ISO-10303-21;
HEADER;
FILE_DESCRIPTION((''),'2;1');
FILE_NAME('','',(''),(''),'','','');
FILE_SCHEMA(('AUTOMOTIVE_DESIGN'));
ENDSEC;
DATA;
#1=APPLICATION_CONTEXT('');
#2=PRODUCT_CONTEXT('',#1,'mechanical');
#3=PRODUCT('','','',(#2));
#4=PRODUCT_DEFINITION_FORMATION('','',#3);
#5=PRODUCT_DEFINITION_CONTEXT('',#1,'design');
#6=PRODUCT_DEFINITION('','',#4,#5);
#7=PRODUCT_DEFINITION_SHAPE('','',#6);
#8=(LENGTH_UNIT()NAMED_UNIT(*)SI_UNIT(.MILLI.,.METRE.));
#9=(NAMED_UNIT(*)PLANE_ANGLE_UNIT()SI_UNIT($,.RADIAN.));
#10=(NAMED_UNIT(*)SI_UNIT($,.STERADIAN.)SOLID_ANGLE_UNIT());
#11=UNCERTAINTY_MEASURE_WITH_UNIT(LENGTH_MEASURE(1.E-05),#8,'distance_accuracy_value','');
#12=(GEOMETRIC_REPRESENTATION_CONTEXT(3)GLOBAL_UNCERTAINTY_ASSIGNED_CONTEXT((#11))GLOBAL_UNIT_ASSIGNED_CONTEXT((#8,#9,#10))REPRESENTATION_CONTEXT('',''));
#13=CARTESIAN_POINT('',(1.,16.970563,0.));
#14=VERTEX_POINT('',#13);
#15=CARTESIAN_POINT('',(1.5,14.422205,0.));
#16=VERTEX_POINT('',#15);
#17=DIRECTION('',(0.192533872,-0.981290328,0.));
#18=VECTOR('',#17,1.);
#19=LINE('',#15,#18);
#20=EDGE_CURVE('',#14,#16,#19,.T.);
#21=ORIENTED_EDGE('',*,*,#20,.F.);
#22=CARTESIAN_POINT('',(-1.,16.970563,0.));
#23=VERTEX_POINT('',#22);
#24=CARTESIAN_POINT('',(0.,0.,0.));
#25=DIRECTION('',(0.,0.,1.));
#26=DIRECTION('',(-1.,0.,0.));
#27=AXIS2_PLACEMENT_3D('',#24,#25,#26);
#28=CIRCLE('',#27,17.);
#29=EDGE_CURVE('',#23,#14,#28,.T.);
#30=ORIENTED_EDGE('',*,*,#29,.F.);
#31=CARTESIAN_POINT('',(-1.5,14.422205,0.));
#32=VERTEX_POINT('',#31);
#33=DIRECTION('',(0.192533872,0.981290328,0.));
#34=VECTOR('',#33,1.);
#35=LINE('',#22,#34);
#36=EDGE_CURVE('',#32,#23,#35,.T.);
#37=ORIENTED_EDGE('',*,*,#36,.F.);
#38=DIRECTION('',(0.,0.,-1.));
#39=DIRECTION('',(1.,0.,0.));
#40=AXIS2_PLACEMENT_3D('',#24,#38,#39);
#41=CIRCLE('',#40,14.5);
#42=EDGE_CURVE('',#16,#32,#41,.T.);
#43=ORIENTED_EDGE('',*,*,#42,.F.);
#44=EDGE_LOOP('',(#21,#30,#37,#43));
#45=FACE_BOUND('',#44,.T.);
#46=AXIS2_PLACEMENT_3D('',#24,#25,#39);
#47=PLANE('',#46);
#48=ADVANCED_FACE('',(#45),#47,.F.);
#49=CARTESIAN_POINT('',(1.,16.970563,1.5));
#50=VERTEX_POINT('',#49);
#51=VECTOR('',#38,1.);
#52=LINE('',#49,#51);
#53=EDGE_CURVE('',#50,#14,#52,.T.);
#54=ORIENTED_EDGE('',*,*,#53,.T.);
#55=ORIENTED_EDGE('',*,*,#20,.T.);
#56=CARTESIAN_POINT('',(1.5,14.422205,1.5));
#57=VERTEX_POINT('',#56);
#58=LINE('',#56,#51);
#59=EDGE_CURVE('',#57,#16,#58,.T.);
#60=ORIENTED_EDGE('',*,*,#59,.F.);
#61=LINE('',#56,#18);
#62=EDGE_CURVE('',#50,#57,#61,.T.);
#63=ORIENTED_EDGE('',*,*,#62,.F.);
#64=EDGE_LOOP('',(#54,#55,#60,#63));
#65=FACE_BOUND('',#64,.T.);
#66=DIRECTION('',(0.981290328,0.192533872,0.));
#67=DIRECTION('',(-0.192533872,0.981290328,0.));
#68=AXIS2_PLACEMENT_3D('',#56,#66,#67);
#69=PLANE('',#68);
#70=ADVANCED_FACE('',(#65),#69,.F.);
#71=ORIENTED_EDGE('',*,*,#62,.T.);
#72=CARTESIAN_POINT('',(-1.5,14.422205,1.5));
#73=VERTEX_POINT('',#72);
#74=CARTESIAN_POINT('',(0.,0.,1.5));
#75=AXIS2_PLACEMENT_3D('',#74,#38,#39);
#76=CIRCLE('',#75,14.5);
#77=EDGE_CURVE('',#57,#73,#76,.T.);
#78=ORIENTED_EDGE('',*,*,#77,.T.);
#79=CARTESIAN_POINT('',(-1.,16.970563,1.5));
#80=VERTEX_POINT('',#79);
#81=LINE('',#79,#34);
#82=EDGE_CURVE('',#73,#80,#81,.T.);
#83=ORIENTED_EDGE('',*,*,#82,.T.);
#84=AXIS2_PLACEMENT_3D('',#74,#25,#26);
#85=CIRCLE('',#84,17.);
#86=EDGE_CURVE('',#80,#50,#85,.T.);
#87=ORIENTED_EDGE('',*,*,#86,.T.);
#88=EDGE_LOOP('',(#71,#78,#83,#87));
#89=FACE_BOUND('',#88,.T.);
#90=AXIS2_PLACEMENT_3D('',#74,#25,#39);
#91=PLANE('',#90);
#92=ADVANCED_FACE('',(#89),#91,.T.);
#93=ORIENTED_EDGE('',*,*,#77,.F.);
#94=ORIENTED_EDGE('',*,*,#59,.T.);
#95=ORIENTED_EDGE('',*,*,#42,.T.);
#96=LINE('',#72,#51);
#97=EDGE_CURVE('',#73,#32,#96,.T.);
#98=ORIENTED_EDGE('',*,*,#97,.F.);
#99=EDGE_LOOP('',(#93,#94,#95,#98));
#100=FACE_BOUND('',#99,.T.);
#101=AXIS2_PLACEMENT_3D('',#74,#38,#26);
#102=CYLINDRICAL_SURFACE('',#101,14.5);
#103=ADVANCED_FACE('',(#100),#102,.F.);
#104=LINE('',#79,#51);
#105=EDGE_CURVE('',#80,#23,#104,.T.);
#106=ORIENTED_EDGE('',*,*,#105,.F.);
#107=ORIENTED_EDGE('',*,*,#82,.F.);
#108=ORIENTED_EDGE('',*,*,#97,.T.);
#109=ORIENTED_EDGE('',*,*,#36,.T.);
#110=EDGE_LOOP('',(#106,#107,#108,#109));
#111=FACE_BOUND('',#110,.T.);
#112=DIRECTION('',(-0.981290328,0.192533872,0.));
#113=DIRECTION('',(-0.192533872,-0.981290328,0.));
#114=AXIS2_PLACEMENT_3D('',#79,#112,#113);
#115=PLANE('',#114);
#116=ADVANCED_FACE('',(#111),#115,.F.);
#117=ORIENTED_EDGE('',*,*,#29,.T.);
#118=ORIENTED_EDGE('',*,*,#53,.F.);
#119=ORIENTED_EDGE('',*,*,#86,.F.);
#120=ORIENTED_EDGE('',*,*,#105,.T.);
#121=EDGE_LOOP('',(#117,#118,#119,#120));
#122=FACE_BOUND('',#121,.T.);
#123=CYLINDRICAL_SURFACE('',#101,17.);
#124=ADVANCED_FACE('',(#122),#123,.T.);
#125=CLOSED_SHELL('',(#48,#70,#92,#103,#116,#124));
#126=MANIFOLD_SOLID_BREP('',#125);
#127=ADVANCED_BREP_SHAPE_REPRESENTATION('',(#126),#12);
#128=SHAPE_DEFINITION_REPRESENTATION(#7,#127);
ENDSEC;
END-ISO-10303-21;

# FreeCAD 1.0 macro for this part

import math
import FreeCAD as App
import Part
import Sketcher
Q = App.Units.Quantity

doc = App.newDocument("Part")
body = doc.addObject("PartDesign::Body", "Body")

# Sketch on XY plane
sketch1 = body.newObject("Sketcher::SketchObject", "Sketch")
sketch1.AttachmentSupport = (doc.getObject("XY_Plane"), [""])
sketch1.MapMode = "FlatFace"
sketch1.addGeometry([
    Part.LineSegment(App.Vector(-1.5, 14.422205, 0), App.Vector(-1, 16.970563, 0)),
    Part.ArcOfCircle(Part.Circle(App.Vector(0, 0, 0), App.Vector(0, 0, 1), 17), math.radians(93.372287), math.radians(446.627713)),
    Part.LineSegment(App.Vector(1, 16.970563, 0), App.Vector(1.5, 14.422205, 0)),
    Part.ArcOfCircle(Part.Circle(App.Vector(0, 0, 0), App.Vector(0, 0, 1), 14.5), math.radians(95.937772), math.radians(444.062228)),
], False)
sketch1.addConstraint([
    Sketcher.Constraint("Coincident", 0, 2, 1, 1),
    Sketcher.Constraint("Coincident", 1, 2, 2, 1),
    Sketcher.Constraint("Coincident", 2, 2, 3, 2),
    Sketcher.Constraint("Coincident", 3, 1, 0, 1),
    Sketcher.Constraint("Coincident", 1, 3, -1, 1),
    Sketcher.Constraint("Coincident", 3, 3, -1, 1),
    Sketcher.Constraint("Horizontal", 0, 2, 1, 2),
    Sketcher.Constraint("Horizontal", 2, 2, 3, 1),
    Sketcher.Constraint("Radius", 1, Q("17 mm")),
    Sketcher.Constraint("Radius", 3, Q("14.5 mm")),
    Sketcher.Constraint("DistanceX", 0, 2, -1, 1, Q("1 mm")),
    Sketcher.Constraint("DistanceX", 3, 1, 2, 2, Q("3 mm")),
])
pad1 = body.newObject("PartDesign::Pad", "Pad")
pad1.Profile = sketch1
pad1.Length = 1.5

doc.recompute()
